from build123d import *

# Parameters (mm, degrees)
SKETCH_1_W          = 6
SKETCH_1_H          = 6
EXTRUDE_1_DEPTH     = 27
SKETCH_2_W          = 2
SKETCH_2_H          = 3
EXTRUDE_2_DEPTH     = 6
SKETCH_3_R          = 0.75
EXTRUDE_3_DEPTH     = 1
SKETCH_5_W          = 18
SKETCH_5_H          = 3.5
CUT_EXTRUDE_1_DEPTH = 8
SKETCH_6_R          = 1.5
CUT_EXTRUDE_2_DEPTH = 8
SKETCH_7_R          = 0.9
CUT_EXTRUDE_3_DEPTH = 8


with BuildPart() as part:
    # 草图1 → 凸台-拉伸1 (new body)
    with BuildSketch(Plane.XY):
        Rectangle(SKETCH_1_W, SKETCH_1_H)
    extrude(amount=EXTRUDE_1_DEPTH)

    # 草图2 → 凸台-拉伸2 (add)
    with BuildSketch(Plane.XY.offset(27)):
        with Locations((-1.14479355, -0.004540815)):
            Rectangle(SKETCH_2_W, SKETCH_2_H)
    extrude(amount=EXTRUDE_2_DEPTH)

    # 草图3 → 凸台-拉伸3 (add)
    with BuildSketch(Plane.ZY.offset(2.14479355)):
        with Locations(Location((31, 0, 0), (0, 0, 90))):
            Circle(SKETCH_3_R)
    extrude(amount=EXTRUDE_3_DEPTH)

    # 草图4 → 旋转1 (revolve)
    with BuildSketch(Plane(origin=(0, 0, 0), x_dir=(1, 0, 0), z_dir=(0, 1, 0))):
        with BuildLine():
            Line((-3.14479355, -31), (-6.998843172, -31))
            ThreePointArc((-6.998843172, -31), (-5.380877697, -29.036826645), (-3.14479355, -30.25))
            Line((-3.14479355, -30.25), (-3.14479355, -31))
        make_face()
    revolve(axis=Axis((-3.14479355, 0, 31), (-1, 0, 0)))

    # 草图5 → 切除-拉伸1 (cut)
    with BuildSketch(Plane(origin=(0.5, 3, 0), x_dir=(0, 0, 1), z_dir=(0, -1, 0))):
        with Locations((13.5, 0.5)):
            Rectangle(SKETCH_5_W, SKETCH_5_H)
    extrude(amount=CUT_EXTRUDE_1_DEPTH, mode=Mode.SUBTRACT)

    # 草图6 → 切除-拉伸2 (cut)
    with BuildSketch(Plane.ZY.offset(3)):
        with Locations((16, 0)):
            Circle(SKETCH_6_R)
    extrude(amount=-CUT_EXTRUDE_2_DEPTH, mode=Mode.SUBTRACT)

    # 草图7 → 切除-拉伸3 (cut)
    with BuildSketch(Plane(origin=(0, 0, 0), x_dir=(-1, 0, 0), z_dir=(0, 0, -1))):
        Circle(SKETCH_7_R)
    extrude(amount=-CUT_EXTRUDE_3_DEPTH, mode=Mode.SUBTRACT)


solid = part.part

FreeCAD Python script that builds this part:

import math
import FreeCAD as App
import Part
import Sketcher

V = App.Vector
Q = App.Units.Quantity

doc = App.newDocument("Part")
params = doc.addObject("Spreadsheet::Sheet", "Params")
for row, (alias, value) in enumerate([
    ("sketch1_width", "6 mm"),
    ("pad1_length", "27 mm"),
    ("sketch2_width", "2 mm"),
    ("sketch2_height", "3 mm"),
    ("pad2_length", "6 mm"),
    ("sketch3_diameter", "1.5 mm"),
    ("pad3_length", "1 mm"),
    ("sketch4_radius", "2 mm"),
    ("sketch4_height", "0.75 mm"),
    ("revolution_angle", "360 deg"),
    ("sketch5_height", "18 mm"),
    ("sketch5_width", "3.5 mm"),
    ("pocket1_length", "8 mm"),
    ("sketch6_diameter", "3 mm"),
    ("pocket2_length", "8 mm"),
    ("sketch7_diameter", "1.8 mm"),
    ("pocket3_length", "8 mm"),
], start=1):
    params.set(f"A{row}", alias)
    params.set(f"B{row}", "=" + value)
    params.setAlias(f"B{row}", alias)

body = doc.addObject("PartDesign::Body", "Body")

# Sketch on XY plane
sketch1 = doc.addObject("Sketcher::SketchObject", "Sketch")
body.addObject(sketch1)
sketch1.AttachmentSupport = (doc.XY_Plane, [""])
sketch1.MapMode = "FlatFace"
sketch1.addGeometry([
    Part.LineSegment(V(-3, 3, 0), V(-3, -3, 0)),
    Part.LineSegment(V(-3, -3, 0), V(3, -3, 0)),
    Part.LineSegment(V(3, -3, 0), V(3, 3, 0)),
    Part.LineSegment(V(3, 3, 0), V(-3, 3, 0)),
], False)
sketch1.addConstraint([
    Sketcher.Constraint("Coincident", 0, 2, 1, 1),
    Sketcher.Constraint("Coincident", 1, 2, 2, 1),
    Sketcher.Constraint("Coincident", 2, 2, 3, 1),
    Sketcher.Constraint("Coincident", 3, 2, 0, 1),
    Sketcher.Constraint("Vertical", 0),
    Sketcher.Constraint("Horizontal", 1),
    Sketcher.Constraint("Vertical", 2),
    Sketcher.Constraint("Horizontal", 3),
    Sketcher.Constraint("Symmetric", 0, 2, 2, 2, -1, 1),
    Sketcher.Constraint("Equal", 3, 0),
    Sketcher.Constraint("DistanceX", 1, 1, 1, 2, Q("6 mm")),
])
sketch1.setExpression("Constraints[10]", "Params.sketch1_width")
pad1 = doc.addObject("PartDesign::Pad", "Pad")
body.addObject(pad1)
pad1.Profile = sketch1
pad1.setExpression("Length", "Params.pad1_length")

# Sketch on XY plane
sketch2 = doc.addObject("Sketcher::SketchObject", "Sketch001")
body.addObject(sketch2)
sketch2.AttachmentSupport = (doc.XY_Plane, [""])
sketch2.MapMode = "FlatFace"
sketch2.AttachmentOffset = App.Placement(V(0, 0, 27), App.Rotation())
sketch2.addGeometry([
    Part.LineSegment(V(-2.144794, 1.495459, 0), V(-2.144794, -1.504541, 0)),
    Part.LineSegment(V(-2.144794, -1.504541, 0), V(-0.144794, -1.504541, 0)),
    Part.LineSegment(V(-0.144794, -1.504541, 0), V(-0.144794, 1.495459, 0)),
    Part.LineSegment(V(-0.144794, 1.495459, 0), V(-2.144794, 1.495459, 0)),
], False)
sketch2.addConstraint([
    Sketcher.Constraint("Coincident", 0, 2, 1, 1),
    Sketcher.Constraint("Coincident", 1, 2, 2, 1),
    Sketcher.Constraint("Coincident", 2, 2, 3, 1),
    Sketcher.Constraint("Coincident", 3, 2, 0, 1),
    Sketcher.Constraint("Vertical", 0),
    Sketcher.Constraint("Horizontal", 1),
    Sketcher.Constraint("Vertical", 2),
    Sketcher.Constraint("Horizontal", 3),
    Sketcher.Constraint("DistanceX", 1, 1, 1, 2, Q("2 mm")),
    Sketcher.Constraint("DistanceY", 0, 2, 0, 1, Q("3 mm")),
    Sketcher.Constraint("DistanceY", 0, 2, -1, 1, Q("1.504541 mm")),
    Sketcher.Constraint("DistanceX", 0, 2, -1, 1, Q("2.144794 mm")),
])
sketch2.setExpression("Constraints[8]", "Params.sketch2_width")
sketch2.setExpression("Constraints[9]", "Params.sketch2_height")
pad2 = doc.addObject("PartDesign::Pad", "Pad001")
body.addObject(pad2)
pad2.Profile = sketch2
pad2.setExpression("Length", "Params.pad2_length")

# Sketch on YZ plane
sketch3 = doc.addObject("Sketcher::SketchObject", "Sketch002")
body.addObject(sketch3)
sketch3.AttachmentSupport = (doc.YZ_Plane, [""])
sketch3.MapMode = "FlatFace"
sketch3.AttachmentOffset = App.Placement(V(0, 0, -2.144794), App.Rotation())
sketch3.addGeometry(Part.Circle(V(0, 31, 0), V(0, 0, 1), 0.75), False)
sketch3.addConstraint([
    Sketcher.Constraint("PointOnObject", 0, 3, -2),
    Sketcher.Constraint("Diameter", 0, Q("1.5 mm")),
    Sketcher.Constraint("DistanceY", -1, 1, 0, 3, Q("31 mm")),
])
sketch3.setExpression("Constraints[1]", "Params.sketch3_diameter")
pad3 = doc.addObject("PartDesign::Pad", "Pad002")
body.addObject(pad3)
pad3.Profile = sketch3
pad3.setExpression("Length", "Params.pad3_length")
pad3.Reversed = True

# Sketch on XZ plane
sketch4 = doc.addObject("Sketcher::SketchObject", "Sketch003")
body.addObject(sketch4)
sketch4.AttachmentSupport = (doc.XZ_Plane, [""])
sketch4.MapMode = "FlatFace"
sketch4.addGeometry([
    Part.LineSegment(V(-6.998843, 31, 0), V(-3.144794, 31, 0)),
    Part.LineSegment(V(-3.144794, 31, 0), V(-3.144794, 30.25, 0)),
    Part.ArcOfCircle(Part.Circle(V(-4.998843, 31, 0), V(0, 0, 1), 2), math.radians(180), math.radians(337.975687)),
], False)
sketch4.addGeometry(Part.LineSegment(V(-3.144794, 31, 0), V(-6.998843, 31, 0)), True)  # axis
sketch4.addConstraint([
    Sketcher.Constraint("Coincident", 0, 2, 1, 1),
    Sketcher.Constraint("Coincident", 1, 2, 2, 2),
    Sketcher.Constraint("Coincident", 2, 1, 0, 1),
    Sketcher.Constraint("Horizontal", 0),
    Sketcher.Constraint("Vertical", 1),
    Sketcher.Constraint("Horizontal", 3),
    Sketcher.Constraint("Coincident", 3, 1, 0, 2),
    Sketcher.Constraint("Horizontal", 2, 3, 0, 2),
    Sketcher.Constraint("Equal", 0, 3),
    Sketcher.Constraint("Radius", 2, Q("2 mm")),
    Sketcher.Constraint("DistanceY", -1, 1, 2, 3, Q("31 mm")),
    Sketcher.Constraint("DistanceY", 1, 2, 1, 1, Q("0.75 mm")),
    Sketcher.Constraint("DistanceX", 2, 3, -1, 1, Q("4.998843 mm")),
])
sketch4.setExpression("Constraints[9]", "Params.sketch4_radius")
sketch4.setExpression("Constraints[11]", "Params.sketch4_height")
revolution = doc.addObject("PartDesign::Revolution", "Revolution")
body.addObject(revolution)
revolution.Profile = sketch4
revolution.ReferenceAxis = (sketch4, ["Axis0"])
revolution.setExpression("Angle", "Params.revolution_angle")

# Sketch on XZ plane
sketch5 = doc.addObject("Sketcher::SketchObject", "Sketch004")
body.addObject(sketch5)
sketch5.AttachmentSupport = (doc.XZ_Plane, [""])
sketch5.MapMode = "FlatFace"
sketch5.AttachmentOffset = App.Placement(V(0, 0, -3), App.Rotation())
sketch5.addGeometry([
    Part.LineSegment(V(-1.75, 4.5, 0), V(1.75, 4.5, 0)),
    Part.LineSegment(V(1.75, 4.5, 0), V(1.75, 22.5, 0)),
    Part.LineSegment(V(1.75, 22.5, 0), V(-1.75, 22.5, 0)),
    Part.LineSegment(V(-1.75, 22.5, 0), V(-1.75, 4.5, 0)),
], False)
sketch5.addConstraint([
    Sketcher.Constraint("Coincident", 0, 2, 1, 1),
    Sketcher.Constraint("Coincident", 1, 2, 2, 1),
    Sketcher.Constraint("Coincident", 2, 2, 3, 1),
    Sketcher.Constraint("Coincident", 3, 2, 0, 1),
    Sketcher.Constraint("Horizontal", 0),
    Sketcher.Constraint("Vertical", 1),
    Sketcher.Constraint("Horizontal", 2),
    Sketcher.Constraint("Vertical", 3),
    Sketcher.Constraint("DistanceY", 1, 1, 1, 2, Q("18 mm")),
    Sketcher.Constraint("DistanceX", 0, 1, 0, 2, Q("3.5 mm")),
    Sketcher.Constraint("DistanceY", -1, 1, 0, 2, Q("4.5 mm")),
    Sketcher.Constraint("DistanceX", -1, 1, 0, 2, Q("1.75 mm")),
])
sketch5.setExpression("Constraints[8]", "Params.sketch5_height")
sketch5.setExpression("Constraints[9]", "Params.sketch5_width")
pocket1 = doc.addObject("PartDesign::Pocket", "Pocket")
body.addObject(pocket1)
pocket1.Profile = sketch5
pocket1.setExpression("Length", "Params.pocket1_length")
pocket1.Reversed = True

# Sketch on YZ plane
sketch6 = doc.addObject("Sketcher::SketchObject", "Sketch005")
body.addObject(sketch6)
sketch6.AttachmentSupport = (doc.YZ_Plane, [""])
sketch6.MapMode = "FlatFace"
sketch6.AttachmentOffset = App.Placement(V(0, 0, -3), App.Rotation())
sketch6.addGeometry(Part.Circle(V(0, 16, 0), V(0, 0, 1), 1.5), False)
sketch6.addConstraint([
    Sketcher.Constraint("PointOnObject", 0, 3, -2),
    Sketcher.Constraint("Diameter", 0, Q("3 mm")),
    Sketcher.Constraint("DistanceY", -1, 1, 0, 3, Q("16 mm")),
])
sketch6.setExpression("Constraints[1]", "Params.sketch6_diameter")
pocket2 = doc.addObject("PartDesign::Pocket", "Pocket001")
body.addObject(pocket2)
pocket2.Profile = sketch6
pocket2.setExpression("Length", "Params.pocket2_length")
pocket2.Reversed = True

# Sketch on XY plane
sketch7 = doc.addObject("Sketcher::SketchObject", "Sketch006")
body.addObject(sketch7)
sketch7.AttachmentSupport = (doc.XY_Plane, [""])
sketch7.MapMode = "FlatFace"
sketch7.addGeometry(Part.Circle(V(0, 0, 0), V(0, 0, 1), 0.9), False)
sketch7.addConstraint([
    Sketcher.Constraint("Coincident", 0, 3, -1, 1),
    Sketcher.Constraint("Diameter", 0, Q("1.8 mm")),
])
sketch7.setExpression("Constraints[1]", "Params.sketch7_diameter")
pocket3 = doc.addObject("PartDesign::Pocket", "Pocket002")
body.addObject(pocket3)
pocket3.Profile = sketch7
pocket3.setExpression("Length", "Params.pocket3_length")
pocket3.Reversed = True

doc.recompute()
